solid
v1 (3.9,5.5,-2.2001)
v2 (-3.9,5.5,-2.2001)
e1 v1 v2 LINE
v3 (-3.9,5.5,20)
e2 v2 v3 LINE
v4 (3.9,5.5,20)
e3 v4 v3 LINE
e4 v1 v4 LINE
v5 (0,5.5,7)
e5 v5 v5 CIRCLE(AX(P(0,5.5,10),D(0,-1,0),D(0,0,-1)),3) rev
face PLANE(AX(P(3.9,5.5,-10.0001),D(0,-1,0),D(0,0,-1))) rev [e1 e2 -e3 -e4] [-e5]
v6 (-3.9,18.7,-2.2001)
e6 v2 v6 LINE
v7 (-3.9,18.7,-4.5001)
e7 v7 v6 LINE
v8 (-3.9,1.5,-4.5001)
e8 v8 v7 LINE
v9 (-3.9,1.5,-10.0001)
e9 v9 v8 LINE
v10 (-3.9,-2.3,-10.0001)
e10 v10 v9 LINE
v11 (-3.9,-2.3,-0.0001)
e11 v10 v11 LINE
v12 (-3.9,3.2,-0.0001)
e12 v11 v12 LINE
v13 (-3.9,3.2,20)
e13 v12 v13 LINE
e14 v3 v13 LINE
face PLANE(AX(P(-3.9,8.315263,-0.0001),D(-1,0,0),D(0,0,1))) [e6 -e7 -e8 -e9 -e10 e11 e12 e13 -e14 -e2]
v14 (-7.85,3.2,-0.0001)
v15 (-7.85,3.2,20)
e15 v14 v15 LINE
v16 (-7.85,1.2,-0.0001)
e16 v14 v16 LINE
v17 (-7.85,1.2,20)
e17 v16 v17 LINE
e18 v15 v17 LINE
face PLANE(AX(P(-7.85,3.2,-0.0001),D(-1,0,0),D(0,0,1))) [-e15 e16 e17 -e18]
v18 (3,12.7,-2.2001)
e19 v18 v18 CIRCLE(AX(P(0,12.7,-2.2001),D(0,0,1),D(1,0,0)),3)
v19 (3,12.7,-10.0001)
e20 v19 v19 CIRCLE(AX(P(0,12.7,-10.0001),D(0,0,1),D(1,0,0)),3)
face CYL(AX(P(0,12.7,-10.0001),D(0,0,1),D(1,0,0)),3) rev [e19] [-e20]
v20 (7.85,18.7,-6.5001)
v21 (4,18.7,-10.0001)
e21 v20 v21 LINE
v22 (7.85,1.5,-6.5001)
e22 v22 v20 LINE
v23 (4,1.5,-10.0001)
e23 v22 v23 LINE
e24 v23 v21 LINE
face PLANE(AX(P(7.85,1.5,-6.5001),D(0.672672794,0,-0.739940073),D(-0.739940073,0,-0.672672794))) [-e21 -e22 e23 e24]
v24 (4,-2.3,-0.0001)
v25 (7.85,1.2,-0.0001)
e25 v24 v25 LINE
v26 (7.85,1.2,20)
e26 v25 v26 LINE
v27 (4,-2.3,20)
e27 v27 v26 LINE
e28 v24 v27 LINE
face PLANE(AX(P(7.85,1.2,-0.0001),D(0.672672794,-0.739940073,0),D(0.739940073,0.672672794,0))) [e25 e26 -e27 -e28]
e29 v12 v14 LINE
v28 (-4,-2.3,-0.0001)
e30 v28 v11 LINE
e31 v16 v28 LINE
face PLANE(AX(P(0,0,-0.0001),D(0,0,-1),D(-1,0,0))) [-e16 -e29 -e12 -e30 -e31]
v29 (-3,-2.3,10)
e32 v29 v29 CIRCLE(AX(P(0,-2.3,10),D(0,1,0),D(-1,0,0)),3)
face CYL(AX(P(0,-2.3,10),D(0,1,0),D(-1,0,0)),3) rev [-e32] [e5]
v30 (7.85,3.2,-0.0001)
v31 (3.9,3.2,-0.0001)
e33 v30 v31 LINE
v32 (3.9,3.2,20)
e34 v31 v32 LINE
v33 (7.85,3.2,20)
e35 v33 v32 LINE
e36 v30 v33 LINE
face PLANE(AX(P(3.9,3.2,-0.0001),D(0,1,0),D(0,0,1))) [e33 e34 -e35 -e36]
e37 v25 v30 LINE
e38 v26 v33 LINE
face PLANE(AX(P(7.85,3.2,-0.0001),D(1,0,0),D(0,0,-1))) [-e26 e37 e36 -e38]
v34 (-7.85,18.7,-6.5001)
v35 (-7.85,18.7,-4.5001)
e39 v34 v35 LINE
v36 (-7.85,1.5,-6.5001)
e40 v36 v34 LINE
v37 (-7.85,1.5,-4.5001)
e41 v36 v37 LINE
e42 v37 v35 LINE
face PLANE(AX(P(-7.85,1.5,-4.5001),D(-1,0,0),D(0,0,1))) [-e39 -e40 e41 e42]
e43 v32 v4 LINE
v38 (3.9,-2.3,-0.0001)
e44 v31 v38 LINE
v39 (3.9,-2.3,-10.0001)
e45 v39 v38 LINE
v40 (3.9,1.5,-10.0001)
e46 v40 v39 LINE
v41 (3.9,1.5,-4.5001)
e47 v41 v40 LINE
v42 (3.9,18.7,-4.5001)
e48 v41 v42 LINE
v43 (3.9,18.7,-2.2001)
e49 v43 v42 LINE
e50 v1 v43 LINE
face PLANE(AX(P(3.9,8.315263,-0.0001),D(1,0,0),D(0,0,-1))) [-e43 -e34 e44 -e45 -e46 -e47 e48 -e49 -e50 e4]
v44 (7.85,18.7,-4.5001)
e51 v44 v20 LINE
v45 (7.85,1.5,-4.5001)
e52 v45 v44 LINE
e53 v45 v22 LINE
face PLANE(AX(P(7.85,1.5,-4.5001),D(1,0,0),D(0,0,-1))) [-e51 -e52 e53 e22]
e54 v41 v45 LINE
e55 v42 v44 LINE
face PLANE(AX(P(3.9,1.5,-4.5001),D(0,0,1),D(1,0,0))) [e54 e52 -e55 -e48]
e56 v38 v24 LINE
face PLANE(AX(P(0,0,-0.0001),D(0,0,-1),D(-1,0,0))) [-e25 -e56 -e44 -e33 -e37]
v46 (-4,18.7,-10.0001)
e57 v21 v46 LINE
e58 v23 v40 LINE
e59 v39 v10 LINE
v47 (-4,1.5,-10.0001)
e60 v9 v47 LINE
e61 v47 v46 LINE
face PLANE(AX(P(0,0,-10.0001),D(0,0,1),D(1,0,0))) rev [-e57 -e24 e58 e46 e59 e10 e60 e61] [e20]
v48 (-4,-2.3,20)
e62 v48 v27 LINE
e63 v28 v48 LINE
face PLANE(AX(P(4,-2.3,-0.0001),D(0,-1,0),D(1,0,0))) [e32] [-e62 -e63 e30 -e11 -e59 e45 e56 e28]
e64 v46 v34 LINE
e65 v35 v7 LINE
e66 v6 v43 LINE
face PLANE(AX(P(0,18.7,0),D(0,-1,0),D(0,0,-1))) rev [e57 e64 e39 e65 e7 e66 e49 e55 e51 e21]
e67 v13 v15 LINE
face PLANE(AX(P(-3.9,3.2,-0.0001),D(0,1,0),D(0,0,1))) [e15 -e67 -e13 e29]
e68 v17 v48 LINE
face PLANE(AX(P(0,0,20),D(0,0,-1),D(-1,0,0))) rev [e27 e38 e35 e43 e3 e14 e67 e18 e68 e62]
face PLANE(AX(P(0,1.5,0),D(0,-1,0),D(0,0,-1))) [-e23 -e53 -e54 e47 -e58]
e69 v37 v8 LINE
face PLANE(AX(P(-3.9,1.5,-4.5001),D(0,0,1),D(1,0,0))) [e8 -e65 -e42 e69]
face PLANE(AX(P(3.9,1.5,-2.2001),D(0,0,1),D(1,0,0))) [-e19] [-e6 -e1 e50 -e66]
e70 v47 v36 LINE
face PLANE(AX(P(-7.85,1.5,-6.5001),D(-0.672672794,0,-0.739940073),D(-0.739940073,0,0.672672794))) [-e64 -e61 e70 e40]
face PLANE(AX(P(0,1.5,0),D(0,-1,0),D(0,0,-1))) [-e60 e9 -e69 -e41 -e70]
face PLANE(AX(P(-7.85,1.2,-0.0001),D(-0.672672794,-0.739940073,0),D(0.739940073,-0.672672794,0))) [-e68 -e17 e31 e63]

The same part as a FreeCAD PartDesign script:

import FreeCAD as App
import Part
import Sketcher

V = App.Vector


def add_polygon(sketch, points):
    """Adds a closed chain of lines whose ends are joined by coincident constraints."""
    first, n = sketch.GeometryCount, len(points)
    for a, b in zip(points, points[1:] + points[:1]):
        sketch.addGeometry(Part.LineSegment(App.Vector(*a, 0), App.Vector(*b, 0)), False)
    for i in range(n):
        sketch.addConstraint(Sketcher.Constraint("Coincident", first + i, 2, first + (i + 1) % n, 1))

doc = App.newDocument("Part")
body = doc.addObject("PartDesign::Body", "Body")

# Sketch on XY plane
sketch1 = body.newObject("Sketcher::SketchObject", "Sketch")
sketch1.AttachmentSupport = (doc.getObject("XY_Plane"), [""])
sketch1.MapMode = "FlatFace"
add_polygon(sketch1, [(3.9, 8.315263), (-3.9, 8.315263), (-3.9, 3.2), (-7.85, 3.2), (-7.85, 1.2), (-4, -2.3), (4, -2.3), (7.85, 1.2), (7.85, 3.2), (3.9, 3.2)])  # lines 0-9
sketch1.addConstraint([
    Sketcher.Constraint("Horizontal", 0),
    Sketcher.Constraint("Vertical", 1),
    Sketcher.Constraint("Horizontal", 2),
    Sketcher.Constraint("Vertical", 3),
    Sketcher.Constraint("Horizontal", 5),
    Sketcher.Constraint("Vertical", 7),
    Sketcher.Constraint("Horizontal", 8),
    Sketcher.Constraint("Vertical", 9),
    Sketcher.Constraint("Symmetric", 3, 2, 6, 2, -2),
    Sketcher.Constraint("Symmetric", 1, 2, 8, 2, -2),
    Sketcher.Constraint("Equal", 4, 6),
    Sketcher.Constraint("DistanceX", 5, 1, 5, 2, 8.0),
    Sketcher.Constraint("DistanceY", 3, 2, 3, 1, 2.0),
    Sketcher.Constraint("DistanceX", 0, 2, 0, 1, 7.8),
    Sketcher.Constraint("DistanceX", 2, 2, 2, 1, 3.95),
    Sketcher.Constraint("DistanceY", -1, 1, 1, 2, 3.2),
    Sketcher.Constraint("DistanceY", 4, 2, -1, 1, 2.3),
    Sketcher.Constraint("DistanceY", 1, 2, 1, 1, 5.115263),
])
pad1 = body.newObject("PartDesign::Pad", "Pad")
pad1.Profile = sketch1
pad1.Type = "TwoLengths"
pad1.Length = 20
pad1.Length2 = 0.0001

# Sketch on XY plane
sketch2 = body.newObject("Sketcher::SketchObject", "Sketch001")
sketch2.AttachmentSupport = (doc.getObject("XY_Plane"), [""])
sketch2.MapMode = "FlatFace"
sketch2.AttachmentOffset = App.Placement(V(0, 0, -0.0001), App.Rotation())
add_polygon(sketch2, [(3.9, 5.5), (3.9, -2.3), (-3.9, -2.3), (-3.9, 5.5)])  # lines 0-3
sketch2.addConstraint([
    Sketcher.Constraint("Vertical", 0),
    Sketcher.Constraint("Horizontal", 1),
    Sketcher.Constraint("Vertical", 2),
    Sketcher.Constraint("Horizontal", 3),
    Sketcher.Constraint("Equal", 3, 0),
    Sketcher.Constraint("DistanceX", 1, 2, 1, 1, 7.8),
    Sketcher.Constraint("DistanceX", -1, 1, 0, 2, 3.9),
    Sketcher.Constraint("DistanceY", 0, 2, -1, 1, 2.3),
])
pad2 = body.newObject("PartDesign::Pad", "Pad001")
pad2.Profile = sketch2
pad2.Length = 10
pad2.Reversed = True

# Sketch on XZ plane
sketch3 = body.newObject("Sketcher::SketchObject", "Sketch002")
sketch3.AttachmentSupport = (doc.getObject("XZ_Plane"), [""])
sketch3.MapMode = "FlatFace"
sketch3.AttachmentOffset = App.Placement(V(0, 0, -5.5), App.Rotation())
add_polygon(sketch3, [(-3.9, -2.2001), (3.9, -2.2001), (3.9, -4.5001), (7.85, -4.5001), (7.85, -6.5001), (4, -10.0001), (-4, -10.0001), (-7.85, -6.5001), (-7.85, -4.5001), (-3.9, -4.5001)])  # lines 0-9
sketch3.addConstraint([
    Sketcher.Constraint("Horizontal", 0),
    Sketcher.Constraint("Vertical", 1),
    Sketcher.Constraint("Horizontal", 2),
    Sketcher.Constraint("Vertical", 3),
    Sketcher.Constraint("Horizontal", 5),
    Sketcher.Constraint("Vertical", 7),
    Sketcher.Constraint("Horizontal", 8),
    Sketcher.Constraint("Vertical", 9),
    Sketcher.Constraint("Symmetric", 3, 2, 6, 2, -2),
    Sketcher.Constraint("Symmetric", 1, 2, 8, 2, -2),
    Sketcher.Constraint("Equal", 4, 6),
    Sketcher.Constraint("DistanceX", 5, 2, 5, 1, 8.0),
    Sketcher.Constraint("DistanceY", 3, 2, 3, 1, 2.0),
    Sketcher.Constraint("DistanceX", 0, 1, 0, 2, 7.8),
    Sketcher.Constraint("DistanceY", 1, 2, 1, 1, 2.3),
    Sketcher.Constraint("DistanceX", 2, 1, 2, 2, 3.95),
    Sketcher.Constraint("DistanceY", 4, 2, 3, 2, 3.5),
    Sketcher.Constraint("DistanceY", 0, 2, -1, 1, 2.2001),
])
pad3 = body.newObject("PartDesign::Pad", "Pad002")
pad3.Profile = sketch3
pad3.Type = "TwoLengths"
pad3.Length = 13.2
pad3.Length2 = 4
pad3.Reversed = True

# Sketch on XZ plane
sketch4 = body.newObject("Sketcher::SketchObject", "Sketch003")
sketch4.AttachmentSupport = (doc.getObject("XZ_Plane"), [""])
sketch4.MapMode = "FlatFace"
sketch4.AttachmentOffset = App.Placement(V(0, 0, -8.315263), App.Rotation())
sketch4.addGeometry(Part.Circle(V(0, 10, 0), V(0, 0, 1), 3), False)
sketch4.addConstraint([
    Sketcher.Constraint("PointOnObject", 0, 3, -2),
    Sketcher.Constraint("Diameter", 0, 6.0),
    Sketcher.Constraint("DistanceY", -1, 1, 0, 3, 10.0),
])
pocket1 = body.newObject("PartDesign::Pocket", "Pocket")
pocket1.Profile = sketch4
pocket1.Type = "ThroughAll"
pocket1.Reversed = True

# Sketch on XY plane
sketch5 = body.newObject("Sketcher::SketchObject", "Sketch004")
sketch5.AttachmentSupport = (doc.getObject("XY_Plane"), [""])
sketch5.MapMode = "FlatFace"
sketch5.AttachmentOffset = App.Placement(V(0, 0, -2.2001), App.Rotation())
sketch5.addGeometry(Part.Circle(V(0, 12.7, 0), V(0, 0, 1), 3), False)
sketch5.addConstraint([
    Sketcher.Constraint("PointOnObject", 0, 3, -2),
    Sketcher.Constraint("Diameter", 0, 6.0),
    Sketcher.Constraint("DistanceY", -1, 1, 0, 3, 12.7),
])
pocket2 = body.newObject("PartDesign::Pocket", "Pocket001")
pocket2.Profile = sketch5
pocket2.Type = "ThroughAll"

# Sketch on XY plane
sketch6 = body.newObject("Sketcher::SketchObject", "Sketch005")
sketch6.AttachmentSupport = (doc.getObject("XY_Plane"), [""])
sketch6.MapMode = "FlatFace"
sketch6.AttachmentOffset = App.Placement(V(0, 0, -0.0001), App.Rotation())
add_polygon(sketch6, [(3.9, 8.315263), (3.9, 5.5), (-3.9, 5.5), (-3.9, 8.315263)])  # lines 0-3
sketch6.addConstraint([
    Sketcher.Constraint("Vertical", 0),
    Sketcher.Constraint("Horizontal", 1),
    Sketcher.Constraint("Vertical", 2),
    Sketcher.Constraint("Horizontal", 3),
    Sketcher.Constraint("DistanceX", 1, 2, 1, 1, 7.8),
    Sketcher.Constraint("DistanceX", -1, 1, 0, 2, 3.9),
    Sketcher.Constraint("DistanceY", -1, 1, 0, 2, 5.5),
    Sketcher.Constraint("DistanceY", 0, 2, 0, 1, 2.815263),
])
pocket3 = body.newObject("PartDesign::Pocket", "Pocket002")
pocket3.Profile = sketch6
pocket3.Type = "ThroughAll"
pocket3.Reversed = True

doc.recompute()
